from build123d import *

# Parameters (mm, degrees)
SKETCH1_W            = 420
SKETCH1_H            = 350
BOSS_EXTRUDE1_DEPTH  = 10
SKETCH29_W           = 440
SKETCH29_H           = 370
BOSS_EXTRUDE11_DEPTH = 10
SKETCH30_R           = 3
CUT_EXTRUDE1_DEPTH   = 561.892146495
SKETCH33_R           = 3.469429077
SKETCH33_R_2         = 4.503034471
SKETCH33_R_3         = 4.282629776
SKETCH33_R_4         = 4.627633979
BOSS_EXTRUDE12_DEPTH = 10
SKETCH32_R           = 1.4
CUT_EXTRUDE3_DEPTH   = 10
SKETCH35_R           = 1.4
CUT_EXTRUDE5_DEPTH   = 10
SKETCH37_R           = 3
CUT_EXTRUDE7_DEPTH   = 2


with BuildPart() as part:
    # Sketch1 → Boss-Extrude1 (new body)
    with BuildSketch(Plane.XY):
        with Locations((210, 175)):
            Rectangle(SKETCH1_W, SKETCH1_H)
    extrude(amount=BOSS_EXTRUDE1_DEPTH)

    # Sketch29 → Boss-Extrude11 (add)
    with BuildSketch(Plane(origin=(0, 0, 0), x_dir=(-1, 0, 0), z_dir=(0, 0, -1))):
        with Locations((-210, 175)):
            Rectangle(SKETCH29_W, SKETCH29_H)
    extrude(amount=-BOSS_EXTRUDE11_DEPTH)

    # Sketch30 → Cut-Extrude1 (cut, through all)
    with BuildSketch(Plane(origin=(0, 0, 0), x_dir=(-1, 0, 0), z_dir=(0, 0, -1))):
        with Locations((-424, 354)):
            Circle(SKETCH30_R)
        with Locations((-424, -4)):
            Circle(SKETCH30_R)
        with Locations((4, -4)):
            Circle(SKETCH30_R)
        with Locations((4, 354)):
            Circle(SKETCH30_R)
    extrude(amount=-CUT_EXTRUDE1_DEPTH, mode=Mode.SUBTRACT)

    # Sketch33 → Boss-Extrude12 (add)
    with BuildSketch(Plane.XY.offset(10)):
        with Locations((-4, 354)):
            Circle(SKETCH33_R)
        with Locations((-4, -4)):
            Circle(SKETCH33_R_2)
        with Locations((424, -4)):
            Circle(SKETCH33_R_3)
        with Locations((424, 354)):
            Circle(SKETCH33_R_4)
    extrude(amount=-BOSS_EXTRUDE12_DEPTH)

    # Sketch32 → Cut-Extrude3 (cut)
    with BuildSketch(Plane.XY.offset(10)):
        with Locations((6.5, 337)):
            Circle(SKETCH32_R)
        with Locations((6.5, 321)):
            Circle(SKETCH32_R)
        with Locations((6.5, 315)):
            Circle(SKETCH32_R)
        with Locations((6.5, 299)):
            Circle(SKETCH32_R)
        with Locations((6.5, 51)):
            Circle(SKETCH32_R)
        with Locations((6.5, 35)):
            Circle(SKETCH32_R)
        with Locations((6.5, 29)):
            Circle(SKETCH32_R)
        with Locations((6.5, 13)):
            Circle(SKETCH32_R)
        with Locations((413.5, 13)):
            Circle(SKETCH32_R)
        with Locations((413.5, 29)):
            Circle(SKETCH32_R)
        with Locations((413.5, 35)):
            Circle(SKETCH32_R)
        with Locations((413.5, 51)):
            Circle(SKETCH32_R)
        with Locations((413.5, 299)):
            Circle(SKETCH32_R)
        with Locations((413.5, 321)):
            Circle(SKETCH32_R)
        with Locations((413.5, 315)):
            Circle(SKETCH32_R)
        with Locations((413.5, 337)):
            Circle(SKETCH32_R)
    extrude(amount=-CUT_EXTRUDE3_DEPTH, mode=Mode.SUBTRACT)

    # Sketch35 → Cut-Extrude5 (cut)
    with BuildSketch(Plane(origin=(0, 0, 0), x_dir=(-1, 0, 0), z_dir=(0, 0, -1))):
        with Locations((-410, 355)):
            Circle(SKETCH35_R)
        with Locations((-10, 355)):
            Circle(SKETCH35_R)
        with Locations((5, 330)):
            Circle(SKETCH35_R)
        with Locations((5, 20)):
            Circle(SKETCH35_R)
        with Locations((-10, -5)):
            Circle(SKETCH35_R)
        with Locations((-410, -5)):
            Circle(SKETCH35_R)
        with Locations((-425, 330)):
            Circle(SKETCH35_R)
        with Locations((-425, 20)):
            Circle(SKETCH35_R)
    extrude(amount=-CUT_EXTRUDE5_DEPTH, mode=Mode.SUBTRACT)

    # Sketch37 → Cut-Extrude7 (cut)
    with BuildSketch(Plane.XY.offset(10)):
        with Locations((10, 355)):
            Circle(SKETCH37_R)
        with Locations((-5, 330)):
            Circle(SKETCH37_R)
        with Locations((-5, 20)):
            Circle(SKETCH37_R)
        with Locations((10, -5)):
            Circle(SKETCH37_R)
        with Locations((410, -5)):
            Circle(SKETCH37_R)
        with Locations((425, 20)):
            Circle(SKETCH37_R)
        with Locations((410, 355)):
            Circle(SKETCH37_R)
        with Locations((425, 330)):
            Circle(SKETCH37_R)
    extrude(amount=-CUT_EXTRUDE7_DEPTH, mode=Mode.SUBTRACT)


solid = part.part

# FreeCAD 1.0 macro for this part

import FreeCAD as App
import Part
import Sketcher

V = App.Vector
Q = App.Units.Quantity

doc = App.newDocument("Part")
body = doc.addObject("PartDesign::Body", "Body")

sketch1 = body.newObject("Sketcher::SketchObject", "Sketch")
sketch1.AttachmentSupport = (doc.getObject("XY_Plane"), [""])
sketch1.MapMode = "FlatFace"
sketch1.addGeometry(Part.LineSegment(V(0, 350, 0), V(0, 0, 0)), False)
sketch1.addGeometry(Part.LineSegment(V(0, 0, 0), V(420, 0, 0)), False)
sketch1.addGeometry(Part.LineSegment(V(420, 0, 0), V(420, 350, 0)), False)
sketch1.addGeometry(Part.LineSegment(V(420, 350, 0), V(0, 350, 0)), False)
sketch1.addConstraint(Sketcher.Constraint("Coincident", 0, 2, 1, 1))
sketch1.addConstraint(Sketcher.Constraint("Coincident", 1, 2, 2, 1))
sketch1.addConstraint(Sketcher.Constraint("Coincident", 2, 2, 3, 1))
sketch1.addConstraint(Sketcher.Constraint("Coincident", 3, 2, 0, 1))
sketch1.addConstraint(Sketcher.Constraint("Vertical", 0))
sketch1.addConstraint(Sketcher.Constraint("Horizontal", 1))
sketch1.addConstraint(Sketcher.Constraint("Vertical", 2))
sketch1.addConstraint(Sketcher.Constraint("Horizontal", 3))
sketch1.addConstraint(Sketcher.Constraint("Coincident", 0, 2, -1, 1))
sketch1.addConstraint(Sketcher.Constraint("DistanceX", 1, 1, 1, 2, Q("420 mm")))
sketch1.addConstraint(Sketcher.Constraint("DistanceY", 0, 2, 0, 1, Q("350 mm")))
pad1 = body.newObject("PartDesign::Pad", "Pad")
pad1.Profile = sketch1
pad1.Length = 10

sketch2 = body.newObject("Sketcher::SketchObject", "Sketch001")
sketch2.AttachmentSupport = (doc.getObject("XY_Plane"), [""])
sketch2.MapMode = "FlatFace"
sketch2.addGeometry(Part.LineSegment(V(430, 360, 0), V(430, -10, 0)), False)
sketch2.addGeometry(Part.LineSegment(V(430, -10, 0), V(-10, -10, 0)), False)
sketch2.addGeometry(Part.LineSegment(V(-10, -10, 0), V(-10, 360, 0)), False)
sketch2.addGeometry(Part.LineSegment(V(-10, 360, 0), V(430, 360, 0)), False)
sketch2.addConstraint(Sketcher.Constraint("Coincident", 0, 2, 1, 1))
sketch2.addConstraint(Sketcher.Constraint("Coincident", 1, 2, 2, 1))
sketch2.addConstraint(Sketcher.Constraint("Coincident", 2, 2, 3, 1))
sketch2.addConstraint(Sketcher.Constraint("Coincident", 3, 2, 0, 1))
sketch2.addConstraint(Sketcher.Constraint("Vertical", 0))
sketch2.addConstraint(Sketcher.Constraint("Horizontal", 1))
sketch2.addConstraint(Sketcher.Constraint("Vertical", 2))
sketch2.addConstraint(Sketcher.Constraint("Horizontal", 3))
sketch2.addConstraint(Sketcher.Constraint("DistanceX", 1, 2, 1, 1, Q("440 mm")))
sketch2.addConstraint(Sketcher.Constraint("DistanceY", 0, 2, 0, 1, Q("370 mm")))
sketch2.addConstraint(Sketcher.Constraint("DistanceX", -1, 1, 0, 2, Q("430 mm")))
sketch2.addConstraint(Sketcher.Constraint("DistanceY", 0, 2, -1, 1, Q("10 mm")))
pad2 = body.newObject("PartDesign::Pad", "Pad001")
pad2.Profile = sketch2
pad2.Length = 10

sketch3 = body.newObject("Sketcher::SketchObject", "Sketch002")
sketch3.AttachmentSupport = (doc.getObject("XY_Plane"), [""])
sketch3.MapMode = "FlatFace"
sketch3.addGeometry(Part.Circle(V(424, 354, 0), V(0, 0, 1), 3), False)
sketch3.addGeometry(Part.Circle(V(424, -4, 0), V(0, 0, 1), 3), False)
sketch3.addGeometry(Part.Circle(V(-4, -4, 0), V(0, 0, 1), 3), False)
sketch3.addGeometry(Part.Circle(V(-4, 354, 0), V(0, 0, 1), 3), False)
sketch3.addConstraint(Sketcher.Constraint("Equal", 0, 1))
sketch3.addConstraint(Sketcher.Constraint("Equal", 1, 2))
sketch3.addConstraint(Sketcher.Constraint("Equal", 2, 3))
sketch3.addConstraint(Sketcher.Constraint("Horizontal", 1, 3, 2, 3))
sketch3.addConstraint(Sketcher.Constraint("Horizontal", 0, 3, 3, 3))
sketch3.addConstraint(Sketcher.Constraint("Vertical", 0, 3, 1, 3))
sketch3.addConstraint(Sketcher.Constraint("Vertical", 2, 3, 3, 3))
sketch3.addConstraint(Sketcher.Constraint("Diameter", 0, Q("6 mm")))
sketch3.addConstraint(Sketcher.Constraint("DistanceX", -1, 1, 0, 3, Q("424 mm")))
sketch3.addConstraint(Sketcher.Constraint("DistanceY", -1, 1, 0, 3, Q("354 mm")))
sketch3.addConstraint(Sketcher.Constraint("DistanceY", 1, 3, -1, 1, Q("4 mm")))
sketch3.addConstraint(Sketcher.Constraint("DistanceX", 2, 3, -1, 1, Q("4 mm")))
pocket1 = body.newObject("PartDesign::Pocket", "Pocket")
pocket1.Profile = sketch3
pocket1.Type = "ThroughAll"
pocket1.Reversed = True

sketch4 = body.newObject("Sketcher::SketchObject", "Sketch003")
sketch4.AttachmentSupport = (doc.getObject("XY_Plane"), [""])
sketch4.MapMode = "FlatFace"
sketch4.AttachmentOffset = App.Placement(V(0, 0, 10), App.Rotation())
sketch4.addGeometry(Part.Circle(V(-4, 354, 0), V(0, 0, 1), 3.5), False)
sketch4.addGeometry(Part.Circle(V(-4, -4, 0), V(0, 0, 1), 4.5), False)
sketch4.addGeometry(Part.Circle(V(424, -4, 0), V(0, 0, 1), 4.3), False)
sketch4.addGeometry(Part.Circle(V(424, 354, 0), V(0, 0, 1), 4.6), False)
sketch4.addConstraint(Sketcher.Constraint("Horizontal", 1, 3, 2, 3))
sketch4.addConstraint(Sketcher.Constraint("Horizontal", 0, 3, 3, 3))
sketch4.addConstraint(Sketcher.Constraint("Vertical", 0, 3, 1, 3))
sketch4.addConstraint(Sketcher.Constraint("Vertical", 2, 3, 3, 3))
sketch4.addConstraint(Sketcher.Constraint("DistanceX", 0, 3, -1, 1, Q("4 mm")))
sketch4.addConstraint(Sketcher.Constraint("DistanceY", -1, 1, 0, 3, Q("354 mm")))
sketch4.addConstraint(Sketcher.Constraint("DistanceY", 1, 3, -1, 1, Q("4 mm")))
sketch4.addConstraint(Sketcher.Constraint("DistanceX", -1, 1, 2, 3, Q("424 mm")))
sketch4.addConstraint(Sketcher.Constraint("Diameter", 0, Q("6.938858 mm")))
sketch4.addConstraint(Sketcher.Constraint("Diameter", 1, Q("9.006069 mm")))
sketch4.addConstraint(Sketcher.Constraint("Diameter", 2, Q("8.56526 mm")))
sketch4.addConstraint(Sketcher.Constraint("Diameter", 3, Q("9.255268 mm")))
pad3 = body.newObject("PartDesign::Pad", "Pad002")
pad3.Profile = sketch4
pad3.Length = 10
pad3.Reversed = True

sketch5 = body.newObject("Sketcher::SketchObject", "Sketch004")
sketch5.AttachmentSupport = (doc.getObject("XY_Plane"), [""])
sketch5.MapMode = "FlatFace"
sketch5.AttachmentOffset = App.Placement(V(0, 0, 10), App.Rotation())
sketch5.addGeometry(Part.Circle(V(6.5, 337, 0), V(0, 0, 1), 1.4), False)
sketch5.addGeometry(Part.Circle(V(6.5, 321, 0), V(0, 0, 1), 1.4), False)
sketch5.addGeometry(Part.Circle(V(6.5, 315, 0), V(0, 0, 1), 1.4), False)
sketch5.addGeometry(Part.Circle(V(6.5, 299, 0), V(0, 0, 1), 1.4), False)
sketch5.addGeometry(Part.Circle(V(6.5, 51, 0), V(0, 0, 1), 1.4), False)
sketch5.addGeometry(Part.Circle(V(6.5, 35, 0), V(0, 0, 1), 1.4), False)
sketch5.addGeometry(Part.Circle(V(6.5, 29, 0), V(0, 0, 1), 1.4), False)
sketch5.addGeometry(Part.Circle(V(6.5, 13, 0), V(0, 0, 1), 1.4), False)
sketch5.addGeometry(Part.Circle(V(413.5, 13, 0), V(0, 0, 1), 1.4), False)
sketch5.addGeometry(Part.Circle(V(413.5, 29, 0), V(0, 0, 1), 1.4), False)
sketch5.addGeometry(Part.Circle(V(413.5, 35, 0), V(0, 0, 1), 1.4), False)
sketch5.addGeometry(Part.Circle(V(413.5, 51, 0), V(0, 0, 1), 1.4), False)
sketch5.addGeometry(Part.Circle(V(413.5, 299, 0), V(0, 0, 1), 1.4), False)
sketch5.addGeometry(Part.Circle(V(413.5, 321, 0), V(0, 0, 1), 1.4), False)
sketch5.addGeometry(Part.Circle(V(413.5, 315, 0), V(0, 0, 1), 1.4), False)
sketch5.addGeometry(Part.Circle(V(413.5, 337, 0), V(0, 0, 1), 1.4), False)
sketch5.addConstraint(Sketcher.Constraint("Equal", 0, 1))
sketch5.addConstraint(Sketcher.Constraint("Equal", 1, 2))
sketch5.addConstraint(Sketcher.Constraint("Equal", 2, 3))
sketch5.addConstraint(Sketcher.Constraint("Equal", 3, 4))
sketch5.addConstraint(Sketcher.Constraint("Equal", 4, 5))
sketch5.addConstraint(Sketcher.Constraint("Equal", 5, 6))
sketch5.addConstraint(Sketcher.Constraint("Equal", 6, 7))
sketch5.addConstraint(Sketcher.Constraint("Equal", 7, 8))
sketch5.addConstraint(Sketcher.Constraint("Equal", 8, 9))
sketch5.addConstraint(Sketcher.Constraint("Equal", 9, 10))
sketch5.addConstraint(Sketcher.Constraint("Equal", 10, 11))
sketch5.addConstraint(Sketcher.Constraint("Equal", 11, 12))
sketch5.addConstraint(Sketcher.Constraint("Equal", 12, 13))
sketch5.addConstraint(Sketcher.Constraint("Equal", 13, 14))
sketch5.addConstraint(Sketcher.Constraint("Equal", 14, 15))
sketch5.addConstraint(Sketcher.Constraint("Horizontal", 7, 3, 8, 3))
sketch5.addConstraint(Sketcher.Constraint("Horizontal", 6, 3, 9, 3))
sketch5.addConstraint(Sketcher.Constraint("Horizontal", 5, 3, 10, 3))
sketch5.addConstraint(Sketcher.Constraint("Horizontal", 4, 3, 11, 3))
sketch5.addConstraint(Sketcher.Constraint("Horizontal", 3, 3, 12, 3))
sketch5.addConstraint(Sketcher.Constraint("Horizontal", 1, 3, 13, 3))
sketch5.addConstraint(Sketcher.Constraint("Horizontal", 2, 3, 14, 3))
sketch5.addConstraint(Sketcher.Constraint("Horizontal", 0, 3, 15, 3))
sketch5.addConstraint(Sketcher.Constraint("Vertical", 0, 3, 1, 3))
sketch5.addConstraint(Sketcher.Constraint("Vertical", 1, 3, 2, 3))
sketch5.addConstraint(Sketcher.Constraint("Vertical", 2, 3, 3, 3))
sketch5.addConstraint(Sketcher.Constraint("Vertical", 3, 3, 4, 3))
sketch5.addConstraint(Sketcher.Constraint("Vertical", 4, 3, 5, 3))
sketch5.addConstraint(Sketcher.Constraint("Vertical", 5, 3, 6, 3))
sketch5.addConstraint(Sketcher.Constraint("Vertical", 6, 3, 7, 3))
sketch5.addConstraint(Sketcher.Constraint("Vertical", 8, 3, 9, 3))
sketch5.addConstraint(Sketcher.Constraint("Vertical", 9, 3, 10, 3))
sketch5.addConstraint(Sketcher.Constraint("Vertical", 10, 3, 11, 3))
sketch5.addConstraint(Sketcher.Constraint("Vertical", 11, 3, 12, 3))
sketch5.addConstraint(Sketcher.Constraint("Vertical", 12, 3, 13, 3))
sketch5.addConstraint(Sketcher.Constraint("Vertical", 13, 3, 14, 3))
sketch5.addConstraint(Sketcher.Constraint("Vertical", 14, 3, 15, 3))
sketch5.addConstraint(Sketcher.Constraint("Diameter", 0, Q("2.8 mm")))
sketch5.addConstraint(Sketcher.Constraint("DistanceY", -1, 1, 0, 3, Q("337 mm")))
sketch5.addConstraint(Sketcher.Constraint("DistanceY", -1, 1, 1, 3, Q("321 mm")))
sketch5.addConstraint(Sketcher.Constraint("DistanceY", -1, 1, 2, 3, Q("315 mm")))
sketch5.addConstraint(Sketcher.Constraint("DistanceY", -1, 1, 3, 3, Q("299 mm")))
sketch5.addConstraint(Sketcher.Constraint("DistanceY", -1, 1, 4, 3, Q("51 mm")))
sketch5.addConstraint(Sketcher.Constraint("DistanceY", -1, 1, 5, 3, Q("35 mm")))
sketch5.addConstraint(Sketcher.Constraint("DistanceY", -1, 1, 6, 3, Q("29 mm")))
sketch5.addConstraint(Sketcher.Constraint("DistanceY", -1, 1, 7, 3, Q("13 mm")))
sketch5.addConstraint(Sketcher.Constraint("DistanceX", 7, 3, 8, 3, Q("407 mm")))
sketch5.addConstraint(Sketcher.Constraint("DistanceX", -1, 1, 0, 3, Q("6.5 mm")))
pocket2 = body.newObject("PartDesign::Pocket", "Pocket001")
pocket2.Profile = sketch5
pocket2.Length = 10

sketch6 = body.newObject("Sketcher::SketchObject", "Sketch005")
sketch6.AttachmentSupport = (doc.getObject("XY_Plane"), [""])
sketch6.MapMode = "FlatFace"
sketch6.addGeometry(Part.Circle(V(410, 355, 0), V(0, 0, 1), 1.4), False)
sketch6.addGeometry(Part.Circle(V(10, 355, 0), V(0, 0, 1), 1.4), False)
sketch6.addGeometry(Part.Circle(V(-5, 330, 0), V(0, 0, 1), 1.4), False)
sketch6.addGeometry(Part.Circle(V(-5, 20, 0), V(0, 0, 1), 1.4), False)
sketch6.addGeometry(Part.Circle(V(10, -5, 0), V(0, 0, 1), 1.4), False)
sketch6.addGeometry(Part.Circle(V(410, -5, 0), V(0, 0, 1), 1.4), False)
sketch6.addGeometry(Part.Circle(V(425, 330, 0), V(0, 0, 1), 1.4), False)
sketch6.addGeometry(Part.Circle(V(425, 20, 0), V(0, 0, 1), 1.4), False)
sketch6.addConstraint(Sketcher.Constraint("Equal", 0, 1))
sketch6.addConstraint(Sketcher.Constraint("Equal", 1, 2))
sketch6.addConstraint(Sketcher.Constraint("Equal", 2, 3))
sketch6.addConstraint(Sketcher.Constraint("Equal", 3, 4))
sketch6.addConstraint(Sketcher.Constraint("Equal", 4, 5))
sketch6.addConstraint(Sketcher.Constraint("Equal", 5, 6))
sketch6.addConstraint(Sketcher.Constraint("Equal", 6, 7))
sketch6.addConstraint(Sketcher.Constraint("Horizontal", 0, 3, 1, 3))
sketch6.addConstraint(Sketcher.Constraint("Horizontal", 4, 3, 5, 3))
sketch6.addConstraint(Sketcher.Constraint("Horizontal", 2, 3, 6, 3))
sketch6.addConstraint(Sketcher.Constraint("Horizontal", 3, 3, 7, 3))
sketch6.addConstraint(Sketcher.Constraint("Vertical", 2, 3, 3, 3))
sketch6.addConstraint(Sketcher.Constraint("Vertical", 1, 3, 4, 3))
sketch6.addConstraint(Sketcher.Constraint("Vertical", 0, 3, 5, 3))
sketch6.addConstraint(Sketcher.Constraint("Vertical", 6, 3, 7, 3))
sketch6.addConstraint(Sketcher.Constraint("Diameter", 0, Q("2.8 mm")))
sketch6.addConstraint(Sketcher.Constraint("DistanceX", -1, 1, 0, 3, Q("410 mm")))
sketch6.addConstraint(Sketcher.Constraint("DistanceY", -1, 1, 0, 3, Q("355 mm")))
sketch6.addConstraint(Sketcher.Constraint("DistanceX", -1, 1, 1, 3, Q("10 mm")))
sketch6.addConstraint(Sketcher.Constraint("DistanceX", 2, 3, -1, 1, Q("5 mm")))
sketch6.addConstraint(Sketcher.Constraint("DistanceY", -1, 1, 2, 3, Q("330 mm")))
sketch6.addConstraint(Sketcher.Constraint("DistanceY", -1, 1, 3, 3, Q("20 mm")))
sketch6.addConstraint(Sketcher.Constraint("DistanceY", 4, 3, -1, 1, Q("5 mm")))
sketch6.addConstraint(Sketcher.Constraint("DistanceX", -1, 1, 6, 3, Q("425 mm")))
pocket3 = body.newObject("PartDesign::Pocket", "Pocket002")
pocket3.Profile = sketch6
pocket3.Length = 10
pocket3.Reversed = True

sketch7 = body.newObject("Sketcher::SketchObject", "Sketch006")
sketch7.AttachmentSupport = (doc.getObject("XY_Plane"), [""])
sketch7.MapMode = "FlatFace"
sketch7.AttachmentOffset = App.Placement(V(0, 0, 10), App.Rotation())
sketch7.addGeometry(Part.Circle(V(10, 355, 0), V(0, 0, 1), 3), False)
sketch7.addGeometry(Part.Circle(V(-5, 330, 0), V(0, 0, 1), 3), False)
sketch7.addGeometry(Part.Circle(V(-5, 20, 0), V(0, 0, 1), 3), False)
sketch7.addGeometry(Part.Circle(V(10, -5, 0), V(0, 0, 1), 3), False)
sketch7.addGeometry(Part.Circle(V(410, -5, 0), V(0, 0, 1), 3), False)
sketch7.addGeometry(Part.Circle(V(425, 20, 0), V(0, 0, 1), 3), False)
sketch7.addGeometry(Part.Circle(V(410, 355, 0), V(0, 0, 1), 3), False)
sketch7.addGeometry(Part.Circle(V(425, 330, 0), V(0, 0, 1), 3), False)
sketch7.addConstraint(Sketcher.Constraint("Equal", 0, 1))
sketch7.addConstraint(Sketcher.Constraint("Equal", 1, 2))
sketch7.addConstraint(Sketcher.Constraint("Equal", 2, 3))
sketch7.addConstraint(Sketcher.Constraint("Equal", 3, 4))
sketch7.addConstraint(Sketcher.Constraint("Equal", 4, 5))
sketch7.addConstraint(Sketcher.Constraint("Equal", 5, 6))
sketch7.addConstraint(Sketcher.Constraint("Equal", 6, 7))
sketch7.addConstraint(Sketcher.Constraint("Horizontal", 3, 3, 4, 3))
sketch7.addConstraint(Sketcher.Constraint("Horizontal", 2, 3, 5, 3))
sketch7.addConstraint(Sketcher.Constraint("Horizontal", 0, 3, 6, 3))
sketch7.addConstraint(Sketcher.Constraint("Horizontal", 1, 3, 7, 3))
sketch7.addConstraint(Sketcher.Constraint("Vertical", 1, 3, 2, 3))
sketch7.addConstraint(Sketcher.Constraint("Vertical", 0, 3, 3, 3))
sketch7.addConstraint(Sketcher.Constraint("Vertical", 4, 3, 6, 3))
sketch7.addConstraint(Sketcher.Constraint("Vertical", 5, 3, 7, 3))
sketch7.addConstraint(Sketcher.Constraint("Diameter", 0, Q("6 mm")))
sketch7.addConstraint(Sketcher.Constraint("DistanceX", -1, 1, 0, 3, Q("10 mm")))
sketch7.addConstraint(Sketcher.Constraint("DistanceY", -1, 1, 0, 3, Q("355 mm")))
sketch7.addConstraint(Sketcher.Constraint("DistanceX", 1, 3, -1, 1, Q("5 mm")))
sketch7.addConstraint(Sketcher.Constraint("DistanceY", -1, 1, 1, 3, Q("330 mm")))
sketch7.addConstraint(Sketcher.Constraint("DistanceY", -1, 1, 2, 3, Q("20 mm")))
sketch7.addConstraint(Sketcher.Constraint("DistanceY", 3, 3, -1, 1, Q("5 mm")))
sketch7.addConstraint(Sketcher.Constraint("DistanceX", -1, 1, 4, 3, Q("410 mm")))
sketch7.addConstraint(Sketcher.Constraint("DistanceX", -1, 1, 5, 3, Q("425 mm")))
pocket4 = body.newObject("PartDesign::Pocket", "Pocket003")
pocket4.Profile = sketch7
pocket4.Length = 2

doc.recompute()
